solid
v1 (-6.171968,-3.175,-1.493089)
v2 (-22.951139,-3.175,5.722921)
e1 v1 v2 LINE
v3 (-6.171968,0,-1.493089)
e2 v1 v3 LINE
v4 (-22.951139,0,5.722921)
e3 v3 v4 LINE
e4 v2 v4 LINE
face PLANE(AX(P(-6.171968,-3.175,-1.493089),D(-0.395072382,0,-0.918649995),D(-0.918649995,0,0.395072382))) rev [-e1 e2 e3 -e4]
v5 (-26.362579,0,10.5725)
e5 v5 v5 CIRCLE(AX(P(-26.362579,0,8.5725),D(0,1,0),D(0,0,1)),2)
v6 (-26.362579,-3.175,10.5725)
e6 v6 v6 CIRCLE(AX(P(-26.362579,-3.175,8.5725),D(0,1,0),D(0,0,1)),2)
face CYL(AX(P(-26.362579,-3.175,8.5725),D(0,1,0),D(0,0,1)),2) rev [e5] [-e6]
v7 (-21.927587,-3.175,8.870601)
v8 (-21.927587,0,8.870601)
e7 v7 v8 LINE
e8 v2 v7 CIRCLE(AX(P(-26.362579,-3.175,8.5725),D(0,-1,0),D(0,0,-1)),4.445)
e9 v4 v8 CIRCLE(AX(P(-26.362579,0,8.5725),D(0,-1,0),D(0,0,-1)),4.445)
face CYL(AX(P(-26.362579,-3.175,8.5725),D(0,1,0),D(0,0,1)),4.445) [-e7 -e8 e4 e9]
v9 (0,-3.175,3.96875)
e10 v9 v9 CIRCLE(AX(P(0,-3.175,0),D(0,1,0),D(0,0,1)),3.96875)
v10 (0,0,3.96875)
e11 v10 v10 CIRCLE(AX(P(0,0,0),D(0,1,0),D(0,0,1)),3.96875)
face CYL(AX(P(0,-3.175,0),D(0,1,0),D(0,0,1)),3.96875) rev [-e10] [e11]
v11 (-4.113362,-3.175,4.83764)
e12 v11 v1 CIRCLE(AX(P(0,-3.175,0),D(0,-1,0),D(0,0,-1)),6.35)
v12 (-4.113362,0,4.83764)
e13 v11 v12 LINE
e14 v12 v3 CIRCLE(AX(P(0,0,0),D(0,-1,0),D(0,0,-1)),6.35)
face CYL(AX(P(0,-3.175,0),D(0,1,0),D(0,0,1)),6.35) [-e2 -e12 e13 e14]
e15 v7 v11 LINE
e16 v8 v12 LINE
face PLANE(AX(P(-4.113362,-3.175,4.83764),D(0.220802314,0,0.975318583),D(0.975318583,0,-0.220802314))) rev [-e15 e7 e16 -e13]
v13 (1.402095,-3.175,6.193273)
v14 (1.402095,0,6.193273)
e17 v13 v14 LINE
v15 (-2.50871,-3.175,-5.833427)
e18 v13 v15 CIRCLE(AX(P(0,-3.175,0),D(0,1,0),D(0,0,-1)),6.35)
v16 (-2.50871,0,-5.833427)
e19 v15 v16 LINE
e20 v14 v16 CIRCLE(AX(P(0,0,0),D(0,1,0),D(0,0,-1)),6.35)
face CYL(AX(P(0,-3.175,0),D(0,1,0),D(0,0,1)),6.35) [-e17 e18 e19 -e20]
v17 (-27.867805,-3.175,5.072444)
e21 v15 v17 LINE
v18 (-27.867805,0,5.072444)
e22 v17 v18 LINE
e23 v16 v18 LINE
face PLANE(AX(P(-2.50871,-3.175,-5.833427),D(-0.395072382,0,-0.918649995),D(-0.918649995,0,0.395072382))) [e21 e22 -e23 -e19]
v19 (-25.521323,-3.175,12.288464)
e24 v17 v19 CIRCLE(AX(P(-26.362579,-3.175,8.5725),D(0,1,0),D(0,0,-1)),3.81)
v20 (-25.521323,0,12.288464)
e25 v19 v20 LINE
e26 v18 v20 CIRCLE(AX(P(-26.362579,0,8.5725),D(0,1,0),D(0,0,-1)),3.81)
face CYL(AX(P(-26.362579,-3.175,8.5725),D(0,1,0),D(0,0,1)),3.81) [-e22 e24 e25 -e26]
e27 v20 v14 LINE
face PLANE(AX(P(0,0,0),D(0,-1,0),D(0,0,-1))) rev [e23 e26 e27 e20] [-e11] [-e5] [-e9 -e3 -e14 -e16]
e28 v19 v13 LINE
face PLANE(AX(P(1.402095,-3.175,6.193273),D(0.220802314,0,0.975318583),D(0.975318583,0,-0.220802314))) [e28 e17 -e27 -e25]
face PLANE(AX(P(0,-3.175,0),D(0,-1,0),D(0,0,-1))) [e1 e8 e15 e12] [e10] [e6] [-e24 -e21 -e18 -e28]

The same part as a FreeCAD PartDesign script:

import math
import FreeCAD as App
import Part
import Sketcher
Q = App.Units.Quantity

doc = App.newDocument("Part")
params = doc.addObject("Spreadsheet::Sheet", "Params")
for row, (alias, value) in enumerate([
    ("sketch1_radius", "0.25 in"),
    ("sketch1_radius2", "0.15 in"),
    ("sketch1_diameter", "0.3125 in"),
    ("sketch1_radius3", "0.175 in"),
    ("pad1_length", "0.125 in"),
], start=1):
    params.set(f"A{row}", alias)
    params.set(f"B{row}", "=" + value)
    params.setAlias(f"B{row}", alias)

body = doc.addObject("PartDesign::Body", "Body")

# Sketch on XZ plane
sketch1 = doc.addObject("Sketcher::SketchObject", "Sketch")
body.addObject(sketch1)
sketch1.AttachmentSupport = (doc.XZ_Plane, [""])
sketch1.MapMode = "FlatFace"
sketch1.addGeometry([
    Part.LineSegment(App.Vector(-25.521323, 12.288464, 0), App.Vector(1.402095, 6.193273, 0)),  # 0
    Part.ArcOfCircle(Part.Circle(App.Vector(0, 0, 0), App.Vector(0, 0, 1), 6.35), math.radians(-113.270488), math.radians(77.243839)),  # 1
    Part.LineSegment(App.Vector(-2.50871, -5.833427, 0), App.Vector(-27.867805, 5.072444, 0)),  # 2
    Part.ArcOfCircle(Part.Circle(App.Vector(-26.362579, 8.5725, 0), App.Vector(0, 0, 1), 3.81), math.radians(77.243839), math.radians(246.729512)),  # 3
    Part.Circle(App.Vector(-26.362579, 8.5725, 0), App.Vector(0, 0, 1), 2),  # 4
    Part.LineSegment(App.Vector(-4.113362, 4.83764, 0), App.Vector(-21.927587, 8.870601, 0)),  # 5
    Part.ArcOfCircle(Part.Circle(App.Vector(-26.362579, 8.5725, 0), App.Vector(0, 0, 1), 4.445), math.radians(-39.872038), math.radians(3.845388)),  # 6
    Part.LineSegment(App.Vector(-22.951139, 5.722921, 0), App.Vector(-6.171968, -1.493089, 0)),  # 7
    Part.ArcOfCircle(Part.Circle(App.Vector(0, 0, 0), App.Vector(0, 0, 1), 6.35), math.radians(130.373941), math.radians(193.599409)),  # 8
    Part.Circle(App.Vector(0, 0, 0), App.Vector(0, 0, 1), 3.96875),  # 9
], False)
sketch1.addConstraint([
    Sketcher.Constraint("Tangent", 0, 2, 1, 2),
    Sketcher.Constraint("Tangent", 1, 1, 2, 1),
    Sketcher.Constraint("Tangent", 2, 2, 3, 2),
    Sketcher.Constraint("Tangent", 3, 1, 0, 1),
    Sketcher.Constraint("Coincident", 5, 2, 6, 2),
    Sketcher.Constraint("Coincident", 6, 1, 7, 1),
    Sketcher.Constraint("Coincident", 7, 2, 8, 2),
    Sketcher.Constraint("Coincident", 8, 1, 5, 1),
    Sketcher.Constraint("Coincident", 1, 3, -1, 1),
    Sketcher.Constraint("Coincident", 8, 3, -1, 1),
    Sketcher.Constraint("Coincident", 9, 3, -1, 1),
    Sketcher.Constraint("Coincident", 4, 3, 3, 3),
    Sketcher.Constraint("Coincident", 6, 3, 3, 3),
    Sketcher.Constraint("Equal", 1, 8),
    Sketcher.Constraint("Parallel", 0, 5),
    Sketcher.Constraint("Parallel", 2, 7),
    Sketcher.Constraint("Equal", 5, 7),
    Sketcher.Constraint("Radius", 1, Q("0.25 in")),
    Sketcher.Constraint("Radius", 3, Q("0.15 in")),
    Sketcher.Constraint("Diameter", 9, Q("0.3125 in")),
    Sketcher.Constraint("Radius", 6, Q("0.175 in")),
    Sketcher.Constraint("Diameter", 4, 4.0),
    Sketcher.Constraint("DistanceY", -1, 1, 3, 3, Q("0.3375 in")),
    Sketcher.Constraint("DistanceY", -1, 1, 5, 2, 8.870601),
    Sketcher.Constraint("DistanceY", 1, 1, 0, 2, 12.0267),
])
sketch1.setExpression("Constraints[17]", "Params.sketch1_radius")
sketch1.setExpression("Constraints[18]", "Params.sketch1_radius2")
sketch1.setExpression("Constraints[19]", "Params.sketch1_diameter")
sketch1.setExpression("Constraints[20]", "Params.sketch1_radius3")
pad1 = doc.addObject("PartDesign::Pad", "Pad")
body.addObject(pad1)
pad1.Profile = sketch1
pad1.setExpression("Length", "Params.pad1_length")

doc.recompute()
